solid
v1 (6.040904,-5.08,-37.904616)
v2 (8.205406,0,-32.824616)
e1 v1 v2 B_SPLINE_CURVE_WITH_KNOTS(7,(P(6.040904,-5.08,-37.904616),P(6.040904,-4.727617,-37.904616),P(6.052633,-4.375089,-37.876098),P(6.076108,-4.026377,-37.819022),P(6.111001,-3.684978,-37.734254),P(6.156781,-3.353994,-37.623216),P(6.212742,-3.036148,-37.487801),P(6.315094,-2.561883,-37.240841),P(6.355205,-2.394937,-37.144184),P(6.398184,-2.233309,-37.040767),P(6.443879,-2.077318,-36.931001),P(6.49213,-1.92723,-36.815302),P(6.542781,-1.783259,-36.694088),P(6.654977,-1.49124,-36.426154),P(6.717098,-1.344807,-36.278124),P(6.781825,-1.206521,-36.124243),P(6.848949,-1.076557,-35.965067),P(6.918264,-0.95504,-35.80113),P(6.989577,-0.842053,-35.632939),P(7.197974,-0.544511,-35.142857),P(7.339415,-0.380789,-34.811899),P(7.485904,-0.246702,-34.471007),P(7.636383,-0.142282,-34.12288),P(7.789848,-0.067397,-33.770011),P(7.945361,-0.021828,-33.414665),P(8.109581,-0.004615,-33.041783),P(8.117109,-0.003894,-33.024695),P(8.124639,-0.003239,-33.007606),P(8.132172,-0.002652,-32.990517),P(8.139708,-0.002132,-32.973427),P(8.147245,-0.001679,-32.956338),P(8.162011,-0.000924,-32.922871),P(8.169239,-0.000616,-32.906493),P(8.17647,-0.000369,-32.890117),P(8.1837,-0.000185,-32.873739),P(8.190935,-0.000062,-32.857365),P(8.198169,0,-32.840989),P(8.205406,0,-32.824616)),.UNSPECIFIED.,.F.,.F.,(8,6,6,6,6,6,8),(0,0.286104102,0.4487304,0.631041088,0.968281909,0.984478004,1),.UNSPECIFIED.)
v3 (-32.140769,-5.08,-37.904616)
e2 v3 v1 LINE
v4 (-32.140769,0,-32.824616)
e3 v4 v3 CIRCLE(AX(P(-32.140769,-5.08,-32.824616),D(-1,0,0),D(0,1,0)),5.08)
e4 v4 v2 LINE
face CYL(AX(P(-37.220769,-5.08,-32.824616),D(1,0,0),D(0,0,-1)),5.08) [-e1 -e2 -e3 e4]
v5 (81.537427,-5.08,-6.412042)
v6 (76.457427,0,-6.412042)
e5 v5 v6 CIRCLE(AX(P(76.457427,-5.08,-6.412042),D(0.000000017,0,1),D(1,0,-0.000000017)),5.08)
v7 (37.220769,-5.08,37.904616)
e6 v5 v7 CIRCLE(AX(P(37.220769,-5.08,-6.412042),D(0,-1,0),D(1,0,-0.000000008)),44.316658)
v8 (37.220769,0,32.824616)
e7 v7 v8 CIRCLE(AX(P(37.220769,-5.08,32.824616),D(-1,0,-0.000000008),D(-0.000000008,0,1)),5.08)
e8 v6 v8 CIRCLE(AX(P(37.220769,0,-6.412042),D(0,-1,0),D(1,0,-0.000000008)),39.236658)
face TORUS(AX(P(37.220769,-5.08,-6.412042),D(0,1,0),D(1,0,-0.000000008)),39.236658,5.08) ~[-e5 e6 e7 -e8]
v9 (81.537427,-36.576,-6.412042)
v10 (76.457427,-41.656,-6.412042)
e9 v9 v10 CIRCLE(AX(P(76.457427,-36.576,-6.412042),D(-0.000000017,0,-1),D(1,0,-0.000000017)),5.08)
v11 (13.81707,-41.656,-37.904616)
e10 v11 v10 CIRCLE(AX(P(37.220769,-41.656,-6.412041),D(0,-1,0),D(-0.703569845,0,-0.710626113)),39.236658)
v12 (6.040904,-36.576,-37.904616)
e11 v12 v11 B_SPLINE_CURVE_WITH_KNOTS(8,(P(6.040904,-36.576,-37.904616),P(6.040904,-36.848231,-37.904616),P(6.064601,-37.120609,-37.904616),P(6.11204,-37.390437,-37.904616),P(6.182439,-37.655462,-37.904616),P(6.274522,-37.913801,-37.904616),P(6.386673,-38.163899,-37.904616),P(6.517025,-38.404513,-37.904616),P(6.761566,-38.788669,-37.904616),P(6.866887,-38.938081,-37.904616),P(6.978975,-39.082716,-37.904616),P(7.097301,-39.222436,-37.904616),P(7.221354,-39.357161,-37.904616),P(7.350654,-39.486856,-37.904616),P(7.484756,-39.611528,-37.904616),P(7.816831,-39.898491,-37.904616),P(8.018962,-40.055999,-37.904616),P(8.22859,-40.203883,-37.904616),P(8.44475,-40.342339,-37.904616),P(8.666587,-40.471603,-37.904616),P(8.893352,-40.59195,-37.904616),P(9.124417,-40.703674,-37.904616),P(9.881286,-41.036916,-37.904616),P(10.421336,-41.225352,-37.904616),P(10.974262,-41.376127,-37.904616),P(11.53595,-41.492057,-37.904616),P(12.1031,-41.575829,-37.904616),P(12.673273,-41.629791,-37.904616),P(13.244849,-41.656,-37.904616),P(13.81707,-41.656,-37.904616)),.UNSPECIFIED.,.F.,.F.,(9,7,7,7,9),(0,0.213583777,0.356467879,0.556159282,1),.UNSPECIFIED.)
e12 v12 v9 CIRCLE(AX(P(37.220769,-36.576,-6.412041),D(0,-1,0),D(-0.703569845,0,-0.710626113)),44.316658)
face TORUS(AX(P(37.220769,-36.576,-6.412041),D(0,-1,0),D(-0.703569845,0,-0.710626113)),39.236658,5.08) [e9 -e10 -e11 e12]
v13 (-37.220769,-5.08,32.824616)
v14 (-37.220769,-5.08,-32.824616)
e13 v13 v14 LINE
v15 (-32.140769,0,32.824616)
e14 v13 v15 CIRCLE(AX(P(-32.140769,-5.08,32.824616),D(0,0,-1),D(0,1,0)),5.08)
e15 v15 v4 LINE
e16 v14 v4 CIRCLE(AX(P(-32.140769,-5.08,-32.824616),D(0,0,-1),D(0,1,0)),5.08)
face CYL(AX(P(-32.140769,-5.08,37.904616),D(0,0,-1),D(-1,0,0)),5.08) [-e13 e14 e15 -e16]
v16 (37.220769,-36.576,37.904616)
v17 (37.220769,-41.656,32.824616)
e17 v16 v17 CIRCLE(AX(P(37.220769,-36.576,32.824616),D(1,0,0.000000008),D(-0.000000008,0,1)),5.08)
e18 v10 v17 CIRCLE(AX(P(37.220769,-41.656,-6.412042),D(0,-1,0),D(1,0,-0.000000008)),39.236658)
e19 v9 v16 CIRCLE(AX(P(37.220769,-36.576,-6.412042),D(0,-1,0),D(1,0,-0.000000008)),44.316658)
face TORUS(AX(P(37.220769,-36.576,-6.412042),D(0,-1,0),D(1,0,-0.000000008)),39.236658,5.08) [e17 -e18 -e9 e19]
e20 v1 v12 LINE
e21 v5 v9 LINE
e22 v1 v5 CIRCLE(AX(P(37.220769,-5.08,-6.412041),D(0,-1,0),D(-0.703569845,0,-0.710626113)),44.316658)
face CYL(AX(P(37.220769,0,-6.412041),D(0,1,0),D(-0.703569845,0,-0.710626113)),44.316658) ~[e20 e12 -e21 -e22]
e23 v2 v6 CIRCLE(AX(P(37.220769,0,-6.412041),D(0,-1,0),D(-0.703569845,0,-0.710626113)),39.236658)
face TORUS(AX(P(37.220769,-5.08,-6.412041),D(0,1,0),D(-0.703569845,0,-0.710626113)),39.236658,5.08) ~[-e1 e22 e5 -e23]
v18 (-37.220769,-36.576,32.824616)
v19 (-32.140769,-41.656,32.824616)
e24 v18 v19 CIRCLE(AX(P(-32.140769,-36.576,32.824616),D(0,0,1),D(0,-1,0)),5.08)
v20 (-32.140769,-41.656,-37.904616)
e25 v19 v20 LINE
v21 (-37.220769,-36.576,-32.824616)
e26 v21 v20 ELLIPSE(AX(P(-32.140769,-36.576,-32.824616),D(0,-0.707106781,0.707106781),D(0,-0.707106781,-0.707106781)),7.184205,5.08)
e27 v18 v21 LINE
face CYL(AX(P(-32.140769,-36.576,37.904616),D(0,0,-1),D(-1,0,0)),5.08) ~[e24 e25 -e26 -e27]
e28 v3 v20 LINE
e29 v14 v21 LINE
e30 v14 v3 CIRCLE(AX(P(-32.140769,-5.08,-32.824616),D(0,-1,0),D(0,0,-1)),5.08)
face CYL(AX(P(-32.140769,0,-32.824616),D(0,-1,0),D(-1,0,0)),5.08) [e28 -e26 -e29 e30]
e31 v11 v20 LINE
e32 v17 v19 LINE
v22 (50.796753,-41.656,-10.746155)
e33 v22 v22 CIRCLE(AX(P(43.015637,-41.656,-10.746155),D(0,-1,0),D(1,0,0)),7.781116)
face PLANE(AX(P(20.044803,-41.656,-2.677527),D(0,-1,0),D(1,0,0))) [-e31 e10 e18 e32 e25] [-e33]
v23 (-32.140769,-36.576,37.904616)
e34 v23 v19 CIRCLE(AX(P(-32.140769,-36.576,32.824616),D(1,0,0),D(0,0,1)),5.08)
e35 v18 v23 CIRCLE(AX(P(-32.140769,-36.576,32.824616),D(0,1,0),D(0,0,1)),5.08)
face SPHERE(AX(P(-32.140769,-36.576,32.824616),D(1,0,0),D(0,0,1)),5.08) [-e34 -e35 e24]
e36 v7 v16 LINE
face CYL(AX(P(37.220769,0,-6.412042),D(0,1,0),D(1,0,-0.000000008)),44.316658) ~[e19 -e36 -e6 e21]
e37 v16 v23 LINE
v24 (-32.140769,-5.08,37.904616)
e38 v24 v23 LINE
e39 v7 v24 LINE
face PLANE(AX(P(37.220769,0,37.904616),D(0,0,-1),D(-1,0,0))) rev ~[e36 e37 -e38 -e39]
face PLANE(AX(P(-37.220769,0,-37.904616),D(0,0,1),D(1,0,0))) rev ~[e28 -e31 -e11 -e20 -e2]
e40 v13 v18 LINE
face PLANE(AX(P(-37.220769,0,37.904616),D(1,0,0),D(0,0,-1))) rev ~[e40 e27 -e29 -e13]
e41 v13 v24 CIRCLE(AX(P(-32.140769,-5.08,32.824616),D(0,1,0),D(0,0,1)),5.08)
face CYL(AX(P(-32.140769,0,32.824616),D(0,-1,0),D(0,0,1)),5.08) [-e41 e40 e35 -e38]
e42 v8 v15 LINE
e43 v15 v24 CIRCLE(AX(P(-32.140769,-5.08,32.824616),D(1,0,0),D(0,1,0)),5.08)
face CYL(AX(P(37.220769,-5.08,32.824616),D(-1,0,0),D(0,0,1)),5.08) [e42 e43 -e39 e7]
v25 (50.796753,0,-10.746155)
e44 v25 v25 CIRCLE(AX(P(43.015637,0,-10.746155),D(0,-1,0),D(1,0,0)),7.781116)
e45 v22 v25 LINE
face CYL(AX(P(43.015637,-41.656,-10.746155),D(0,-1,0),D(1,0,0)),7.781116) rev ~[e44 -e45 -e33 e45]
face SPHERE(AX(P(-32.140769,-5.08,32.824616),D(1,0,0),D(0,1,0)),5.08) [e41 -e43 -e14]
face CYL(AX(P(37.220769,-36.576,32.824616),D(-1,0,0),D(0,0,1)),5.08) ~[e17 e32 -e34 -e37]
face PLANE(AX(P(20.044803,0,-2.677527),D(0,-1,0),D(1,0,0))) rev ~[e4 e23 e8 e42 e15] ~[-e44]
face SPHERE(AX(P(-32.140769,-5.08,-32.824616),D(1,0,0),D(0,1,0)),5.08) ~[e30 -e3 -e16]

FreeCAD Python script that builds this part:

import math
import FreeCAD as App
import Part
import Sketcher

V = App.Vector
Q = App.Units.Quantity


def edges_at(feature, points):
    """Names of the edges that pass closest to the given points."""
    edges = feature.Shape.Edges
    near = lambda p: min(range(len(edges)), key=lambda i: edges[i].distToShape(Part.Vertex(*p))[0])
    return sorted({f"Edge{near(p) + 1}" for p in points})

doc = App.newDocument("Part")
body = doc.addObject("PartDesign::Body", "Body")

# Sketch on XZ plane
sketch1 = body.newObject("Sketcher::SketchObject", "Sketch")
sketch1.AttachmentSupport = (doc.getObject("XZ_Plane"), [""])
sketch1.MapMode = "FlatFace"
sketch1.addGeometry([
    Part.ArcOfCircle(Part.Circle(V(37, -6, 0), V(0, 0, 1), 44), math.radians(-135), math.radians(0)),  # 0
    Part.ArcOfCircle(Part.Circle(V(37, -6, 0), V(0, 0, 1), 44), math.radians(0), math.radians(90)),  # 1
    Part.LineSegment(V(37, 38, 0), V(-37, 38, 0)),  # 2
    Part.LineSegment(V(-37, 38, 0), V(-37, -38, 0)),  # 3
    Part.LineSegment(V(-37, -38, 0), V(6, -38, 0)),  # 4
], False)
sketch1.addConstraint([
    Sketcher.Constraint("Tangent", 0, 2, 1, 1),
    Sketcher.Constraint("Tangent", 1, 2, 2, 1),
    Sketcher.Constraint("Coincident", 2, 2, 3, 1),
    Sketcher.Constraint("Coincident", 3, 2, 4, 1),
    Sketcher.Constraint("Coincident", 4, 2, 0, 1),
    Sketcher.Constraint("Horizontal", 2),
    Sketcher.Constraint("Vertical", 3),
    Sketcher.Constraint("Horizontal", 4),
    Sketcher.Constraint("Equal", 0, 1),
    Sketcher.Constraint("Symmetric", 1, 2, 3, 2, -1, 1),
    Sketcher.Constraint("Horizontal", 1, 3, 0, 2),
    Sketcher.Constraint("Radius", 0, Q("44.316658 mm")),
    Sketcher.Constraint("DistanceY", 3, 2, 3, 1, Q("75.809232 mm")),
    Sketcher.Constraint("DistanceX", 2, 2, 2, 1, Q("74.441538 mm")),
])
pad1 = body.newObject("PartDesign::Pad", "Pad")
pad1.Profile = sketch1
pad1.Length = Q("1.64 in")
doc.recompute()

fillet = body.newObject("PartDesign::Fillet", "Fillet")
fillet.Base = (pad1, edges_at(pad1, [
    (0, -41.656, 37.905),
    (37.221, -20.828, 37.905),
    (54.282, 0, -47.313),
    (-15.59, 0, -37.905),
    (-37.221, 0, 0),
    (-37.221, -20.828, 37.905),
    (-37.221, -41.656, 0),
    (-37.221, -20.828, -37.905),
]))
fillet.Radius = Q("0.2 in")

# Sketch on XZ plane
sketch2 = body.newObject("Sketcher::SketchObject", "Sketch001")
sketch2.AttachmentSupport = (doc.getObject("XZ_Plane"), [""])
sketch2.MapMode = "FlatFace"
sketch2.AttachmentOffset = App.Placement(V(0, 0, 1.64 * 25.4), App.Rotation())
sketch2.addGeometry(Part.Circle(V(43, -11, 0), V(0, 0, 1), 8), False)
sketch2.addConstraint([
    Sketcher.Constraint("Diameter", 0, Q("15.562232 mm")),
    Sketcher.Constraint("DistanceX", -1, 1, 0, 3, Q("43.015637 mm")),
    Sketcher.Constraint("DistanceY", 0, 3, -1, 1, Q("10.746155 mm")),
])
pocket1 = body.newObject("PartDesign::Pocket", "Pocket")
pocket1.Profile = sketch2
pocket1.Length = Q("2.19 in")

doc.recompute()
